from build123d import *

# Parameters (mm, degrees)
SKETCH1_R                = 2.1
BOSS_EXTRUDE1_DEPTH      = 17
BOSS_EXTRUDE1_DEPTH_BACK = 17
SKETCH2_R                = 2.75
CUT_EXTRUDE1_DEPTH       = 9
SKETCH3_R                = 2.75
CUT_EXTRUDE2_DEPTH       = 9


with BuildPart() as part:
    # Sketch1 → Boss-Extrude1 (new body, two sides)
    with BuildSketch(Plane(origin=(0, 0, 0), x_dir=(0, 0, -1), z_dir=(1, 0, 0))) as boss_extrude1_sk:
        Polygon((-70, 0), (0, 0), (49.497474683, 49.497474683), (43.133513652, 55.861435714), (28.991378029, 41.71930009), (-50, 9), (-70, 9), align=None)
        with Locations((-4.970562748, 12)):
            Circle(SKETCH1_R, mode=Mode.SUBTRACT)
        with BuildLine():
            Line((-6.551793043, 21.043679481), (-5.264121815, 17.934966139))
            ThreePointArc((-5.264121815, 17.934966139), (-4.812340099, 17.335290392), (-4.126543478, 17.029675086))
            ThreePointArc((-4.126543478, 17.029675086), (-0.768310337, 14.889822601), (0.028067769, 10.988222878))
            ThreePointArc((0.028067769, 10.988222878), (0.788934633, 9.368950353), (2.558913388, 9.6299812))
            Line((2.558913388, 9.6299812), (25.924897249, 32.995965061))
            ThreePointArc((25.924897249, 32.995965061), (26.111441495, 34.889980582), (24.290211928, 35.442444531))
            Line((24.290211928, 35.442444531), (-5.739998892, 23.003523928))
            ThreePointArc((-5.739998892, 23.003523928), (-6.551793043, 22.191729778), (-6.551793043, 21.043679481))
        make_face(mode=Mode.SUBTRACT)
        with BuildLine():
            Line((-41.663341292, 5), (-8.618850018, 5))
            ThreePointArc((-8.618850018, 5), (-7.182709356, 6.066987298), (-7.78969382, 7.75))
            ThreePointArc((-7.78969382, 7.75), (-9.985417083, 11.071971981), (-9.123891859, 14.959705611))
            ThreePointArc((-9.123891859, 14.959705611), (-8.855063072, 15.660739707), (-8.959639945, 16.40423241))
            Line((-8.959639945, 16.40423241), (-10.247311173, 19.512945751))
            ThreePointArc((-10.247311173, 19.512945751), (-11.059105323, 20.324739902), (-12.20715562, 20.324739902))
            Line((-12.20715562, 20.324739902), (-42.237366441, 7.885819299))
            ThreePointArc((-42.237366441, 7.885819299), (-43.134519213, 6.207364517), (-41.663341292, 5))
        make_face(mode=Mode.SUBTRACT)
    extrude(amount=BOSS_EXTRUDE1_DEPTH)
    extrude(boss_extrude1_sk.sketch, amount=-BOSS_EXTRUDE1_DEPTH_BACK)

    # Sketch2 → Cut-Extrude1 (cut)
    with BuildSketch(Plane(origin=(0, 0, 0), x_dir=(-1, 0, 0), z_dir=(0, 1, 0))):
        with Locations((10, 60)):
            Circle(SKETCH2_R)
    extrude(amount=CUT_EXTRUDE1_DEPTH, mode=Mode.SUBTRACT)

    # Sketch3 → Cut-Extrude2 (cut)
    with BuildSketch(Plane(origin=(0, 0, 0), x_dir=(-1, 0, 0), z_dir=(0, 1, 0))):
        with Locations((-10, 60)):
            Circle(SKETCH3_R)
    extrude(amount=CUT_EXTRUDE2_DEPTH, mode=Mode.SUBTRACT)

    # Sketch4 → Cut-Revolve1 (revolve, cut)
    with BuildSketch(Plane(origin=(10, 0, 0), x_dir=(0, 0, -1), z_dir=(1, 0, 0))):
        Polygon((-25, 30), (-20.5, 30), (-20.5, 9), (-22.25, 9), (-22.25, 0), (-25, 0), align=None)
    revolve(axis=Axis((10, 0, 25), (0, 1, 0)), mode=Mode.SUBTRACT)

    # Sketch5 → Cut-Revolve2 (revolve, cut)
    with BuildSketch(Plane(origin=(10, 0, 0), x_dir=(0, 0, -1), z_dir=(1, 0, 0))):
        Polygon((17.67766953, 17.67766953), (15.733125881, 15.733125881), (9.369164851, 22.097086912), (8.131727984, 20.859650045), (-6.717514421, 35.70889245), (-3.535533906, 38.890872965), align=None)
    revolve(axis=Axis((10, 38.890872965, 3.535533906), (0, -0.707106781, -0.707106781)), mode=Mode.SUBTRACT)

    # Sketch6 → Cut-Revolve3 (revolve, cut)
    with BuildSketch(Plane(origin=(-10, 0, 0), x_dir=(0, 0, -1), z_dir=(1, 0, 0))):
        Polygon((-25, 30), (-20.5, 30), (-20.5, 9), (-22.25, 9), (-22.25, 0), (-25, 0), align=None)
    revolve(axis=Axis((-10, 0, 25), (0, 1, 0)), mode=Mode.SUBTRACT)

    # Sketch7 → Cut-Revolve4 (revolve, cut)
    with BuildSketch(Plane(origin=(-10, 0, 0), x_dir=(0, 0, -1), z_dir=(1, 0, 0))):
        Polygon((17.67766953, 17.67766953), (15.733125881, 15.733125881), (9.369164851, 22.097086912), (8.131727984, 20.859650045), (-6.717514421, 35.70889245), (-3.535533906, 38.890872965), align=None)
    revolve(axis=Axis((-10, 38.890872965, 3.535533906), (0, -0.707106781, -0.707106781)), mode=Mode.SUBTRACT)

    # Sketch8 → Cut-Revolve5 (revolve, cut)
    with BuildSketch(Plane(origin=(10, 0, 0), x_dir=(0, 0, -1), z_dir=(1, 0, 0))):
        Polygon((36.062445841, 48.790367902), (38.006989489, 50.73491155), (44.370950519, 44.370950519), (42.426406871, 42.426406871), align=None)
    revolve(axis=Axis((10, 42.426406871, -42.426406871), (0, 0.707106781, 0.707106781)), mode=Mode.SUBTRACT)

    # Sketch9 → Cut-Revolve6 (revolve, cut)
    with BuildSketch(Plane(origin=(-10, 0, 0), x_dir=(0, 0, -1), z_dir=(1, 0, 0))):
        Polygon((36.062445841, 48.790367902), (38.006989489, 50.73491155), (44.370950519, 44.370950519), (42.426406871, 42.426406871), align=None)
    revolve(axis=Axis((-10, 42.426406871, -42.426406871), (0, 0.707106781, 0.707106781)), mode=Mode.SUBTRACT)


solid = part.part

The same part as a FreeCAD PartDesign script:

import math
import FreeCAD as App
import Part
import Sketcher
Q = App.Units.Quantity

doc = App.newDocument("Part")
body = doc.addObject("PartDesign::Body", "Body")

# Sketch on YZ plane
sketch1 = body.newObject("Sketcher::SketchObject", "Sketch")
sketch1.AttachmentSupport = (doc.getObject("YZ_Plane"), [""])
sketch1.MapMode = "FlatFace"
sketch1.addGeometry(Part.LineSegment(App.Vector(0, 70, 0), App.Vector(0, 0, 0)), False)
sketch1.addGeometry(Part.LineSegment(App.Vector(0, 0, 0), App.Vector(49.497475, -49.497475, 0)), False)
sketch1.addGeometry(Part.LineSegment(App.Vector(49.497475, -49.497475, 0), App.Vector(55.861436, -43.133514, 0)), False)
sketch1.addGeometry(Part.LineSegment(App.Vector(55.861436, -43.133514, 0), App.Vector(41.7193, -28.991378, 0)), False)
sketch1.addGeometry(Part.LineSegment(App.Vector(41.7193, -28.991378, 0), App.Vector(9, 50, 0)), False)
sketch1.addGeometry(Part.LineSegment(App.Vector(9, 50, 0), App.Vector(9, 70, 0)), False)
sketch1.addGeometry(Part.LineSegment(App.Vector(9, 70, 0), App.Vector(0, 70, 0)), False)
sketch1.addGeometry(Part.LineSegment(App.Vector(5, 8.61885, 0), App.Vector(5, 41.663341, 0)), False)
sketch1.addGeometry(Part.ArcOfCircle(Part.Circle(App.Vector(6.5, 41.663341, 0), App.Vector(0, 0, 1), 1.5), math.radians(22.5), math.radians(180)), False)
sketch1.addGeometry(Part.LineSegment(App.Vector(7.885819, 42.237366, 0), App.Vector(20.32474, 12.207156, 0)), False)
sketch1.addGeometry(Part.ArcOfCircle(Part.Circle(App.Vector(18.938921, 11.63313, 0), App.Vector(0, 0, 1), 1.5), math.radians(-67.5), math.radians(22.5)), False)
sketch1.addGeometry(Part.LineSegment(App.Vector(19.512946, 10.247311, 0), App.Vector(16.404232, 8.95964, 0)), False)
sketch1.addGeometry(Part.ArcOfCircle(Part.Circle(App.Vector(15.830207, 10.345459, 0), App.Vector(0, 0, 1), 1.5), math.radians(-125.474068), math.radians(-67.5)), False)
sketch1.addGeometry(Part.ArcOfCircle(Part.Circle(App.Vector(12, 4.970563, 0), App.Vector(0, 0, 1), 5.1), math.radians(54.525932), math.radians(146.44269)), False)
sketch1.addGeometry(Part.ArcOfCircle(Part.Circle(App.Vector(6.5, 8.61885, 0), App.Vector(0, 0, 1), 1.5), math.radians(180), math.radians(326.44269)), False)
sketch1.addGeometry(Part.Circle(App.Vector(12, 4.970563, 0), App.Vector(0, 0, 1), 2.1), False)
sketch1.addGeometry(Part.LineSegment(App.Vector(17.934966, 5.264122, 0), App.Vector(21.043679, 6.551793, 0)), False)
sketch1.addGeometry(Part.ArcOfCircle(Part.Circle(App.Vector(21.617705, 5.165974, 0), App.Vector(0, 0, 1), 1.5), math.radians(22.5), math.radians(112.5)), False)
sketch1.addGeometry(Part.LineSegment(App.Vector(23.003524, 5.739999, 0), App.Vector(35.442445, -24.290212, 0)), False)
sketch1.addGeometry(Part.ArcOfCircle(Part.Circle(App.Vector(34.056625, -24.864237, 0), App.Vector(0, 0, 1), 1.5), math.radians(-135), math.radians(22.5)), False)
sketch1.addGeometry(Part.LineSegment(App.Vector(32.995965, -25.924897, 0), App.Vector(9.629981, -2.558913, 0)), False)
sketch1.addGeometry(Part.ArcOfCircle(Part.Circle(App.Vector(10.690641, -1.498253, 0), App.Vector(0, 0, 1), 1.5), math.radians(78.55731), math.radians(225)), False)
sketch1.addGeometry(Part.ArcOfCircle(Part.Circle(App.Vector(12, 4.970563, 0), App.Vector(0, 0, 1), 5.1), math.radians(-101.44269), math.radians(-9.525932)), False)
sketch1.addGeometry(Part.ArcOfCircle(Part.Circle(App.Vector(18.508991, 3.878303, 0), App.Vector(0, 0, 1), 1.5), math.radians(112.5), math.radians(170.474068)), False)
sketch1.addConstraint(Sketcher.Constraint("Coincident", 0, 2, 1, 1))
sketch1.addConstraint(Sketcher.Constraint("Coincident", 1, 2, 2, 1))
sketch1.addConstraint(Sketcher.Constraint("Coincident", 2, 2, 3, 1))
sketch1.addConstraint(Sketcher.Constraint("Coincident", 3, 2, 4, 1))
sketch1.addConstraint(Sketcher.Constraint("Coincident", 4, 2, 5, 1))
sketch1.addConstraint(Sketcher.Constraint("Coincident", 5, 2, 6, 1))
sketch1.addConstraint(Sketcher.Constraint("Coincident", 6, 2, 0, 1))
sketch1.addConstraint(Sketcher.Constraint("Tangent", 7, 2, 8, 2))
sketch1.addConstraint(Sketcher.Constraint("Tangent", 8, 1, 9, 1))
sketch1.addConstraint(Sketcher.Constraint("Tangent", 9, 2, 10, 2))
sketch1.addConstraint(Sketcher.Constraint("Tangent", 10, 1, 11, 1))
sketch1.addConstraint(Sketcher.Constraint("Tangent", 11, 2, 12, 2))
sketch1.addConstraint(Sketcher.Constraint("Tangent", 12, 1, 13, 1))
sketch1.addConstraint(Sketcher.Constraint("Tangent", 13, 2, 14, 2))
sketch1.addConstraint(Sketcher.Constraint("Tangent", 14, 1, 7, 1))
sketch1.addConstraint(Sketcher.Constraint("Tangent", 16, 2, 17, 2))
sketch1.addConstraint(Sketcher.Constraint("Tangent", 17, 1, 18, 1))
sketch1.addConstraint(Sketcher.Constraint("Tangent", 18, 2, 19, 2))
sketch1.addConstraint(Sketcher.Constraint("Tangent", 19, 1, 20, 1))
sketch1.addConstraint(Sketcher.Constraint("Tangent", 20, 2, 21, 2))
sketch1.addConstraint(Sketcher.Constraint("Tangent", 21, 1, 22, 1))
sketch1.addConstraint(Sketcher.Constraint("Tangent", 22, 2, 23, 2))
sketch1.addConstraint(Sketcher.Constraint("Tangent", 23, 1, 16, 1))
sketch1.addConstraint(Sketcher.Constraint("Vertical", 0))
sketch1.addConstraint(Sketcher.Constraint("Vertical", 5))
sketch1.addConstraint(Sketcher.Constraint("Horizontal", 6))
sketch1.addConstraint(Sketcher.Constraint("Vertical", 7))
sketch1.addConstraint(Sketcher.Constraint("Coincident", 0, 2, -1, 1))
sketch1.addConstraint(Sketcher.Constraint("Coincident", 15, 3, 13, 3))
sketch1.addConstraint(Sketcher.Constraint("Coincident", 22, 3, 13, 3))
sketch1.addConstraint(Sketcher.Constraint("Equal", 8, 10))
sketch1.addConstraint(Sketcher.Constraint("Equal", 10, 12))
sketch1.addConstraint(Sketcher.Constraint("Equal", 12, 14))
sketch1.addConstraint(Sketcher.Constraint("Equal", 14, 17))
sketch1.addConstraint(Sketcher.Constraint("Equal", 17, 19))
sketch1.addConstraint(Sketcher.Constraint("Equal", 19, 21))
sketch1.addConstraint(Sketcher.Constraint("Equal", 13, 22))
sketch1.addConstraint(Sketcher.Constraint("Equal", 21, 23))
sketch1.addConstraint(Sketcher.Constraint("Perpendicular", 1, 2))
sketch1.addConstraint(Sketcher.Constraint("Perpendicular", 2, 3))
sketch1.addConstraint(Sketcher.Constraint("Parallel", 4, 9))
sketch1.addConstraint(Sketcher.Constraint("Perpendicular", 9, 11))
sketch1.addConstraint(Sketcher.Constraint("Parallel", 11, 16))
sketch1.addConstraint(Sketcher.Constraint("Perpendicular", 16, 18))
sketch1.addConstraint(Sketcher.Constraint("Parallel", 3, 20))
sketch1.addConstraint(Sketcher.Constraint("Equal", 11, 16))
sketch1.addConstraint(Sketcher.Constraint("Equal", 9, 18))
sketch1.addConstraint(Sketcher.Constraint("Diameter", 15, 4.2))
sketch1.addConstraint(Sketcher.Constraint("Radius", 8, 1.5))
sketch1.addConstraint(Sketcher.Constraint("Radius", 13, 5.1))
sketch1.addConstraint(Sketcher.Constraint("DistanceX", 6, 2, 6, 1, 9.0))
sketch1.addConstraint(Sketcher.Constraint("DistanceY", 0, 2, 0, 1, 70.0))
sketch1.addConstraint(Sketcher.Constraint("DistanceY", 5, 1, 5, 2, 20.0))
sketch1.addConstraint(Sketcher.Constraint("Angle", 1, Q("-45 deg")))
sketch1.addConstraint(Sketcher.Constraint("Distance", 1, 70.0))
sketch1.addConstraint(Sketcher.Constraint("Distance", 2, 9.0))
sketch1.addConstraint(Sketcher.Constraint("Distance", 3, 20.0))
sketch1.addConstraint(Sketcher.Constraint("DistanceX", -1, 1, 13, 3, 12.0))
sketch1.addConstraint(Sketcher.Constraint("DistanceX", -1, 1, 7, 2, 5.0))
sketch1.addConstraint(Sketcher.Constraint("DistanceY", -1, 1, 17, 1, 5.739999))
sketch1.addConstraint(Sketcher.Constraint("DistanceY", 7, 1, 7, 2, 33.044491))
sketch1.addConstraint(Sketcher.Constraint("DistanceY", 19, 3, 13, 3, 29.8348))
sketch1.addConstraint(Sketcher.Constraint("DistanceX", 12, 1, 12, 3, 0.870502))
pad1 = body.newObject("PartDesign::Pad", "Pad")
pad1.Profile = sketch1
pad1.Type = "TwoLengths"
pad1.Length = 17
pad1.Length2 = 17

# Sketch on XZ plane
sketch2 = body.newObject("Sketcher::SketchObject", "Sketch001")
sketch2.AttachmentSupport = (doc.getObject("XZ_Plane"), [""])
sketch2.MapMode = "FlatFace"
sketch2.addGeometry(Part.Circle(App.Vector(-10, 60, 0), App.Vector(0, 0, 1), 2.75), False)
sketch2.addConstraint(Sketcher.Constraint("Diameter", 0, 5.5))
sketch2.addConstraint(Sketcher.Constraint("DistanceX", 0, 3, -1, 1, 10.0))
sketch2.addConstraint(Sketcher.Constraint("DistanceY", -1, 1, 0, 3, 60.0))
pocket1 = body.newObject("PartDesign::Pocket", "Pocket")
pocket1.Profile = sketch2
pocket1.Length = 9

# Sketch on XZ plane
sketch3 = body.newObject("Sketcher::SketchObject", "Sketch002")
sketch3.AttachmentSupport = (doc.getObject("XZ_Plane"), [""])
sketch3.MapMode = "FlatFace"
sketch3.addGeometry(Part.Circle(App.Vector(10, 60, 0), App.Vector(0, 0, 1), 2.75), False)
sketch3.addConstraint(Sketcher.Constraint("Diameter", 0, 5.5))
sketch3.addConstraint(Sketcher.Constraint("DistanceX", -1, 1, 0, 3, 10.0))
sketch3.addConstraint(Sketcher.Constraint("DistanceY", -1, 1, 0, 3, 60.0))
pocket2 = body.newObject("PartDesign::Pocket", "Pocket001")
pocket2.Profile = sketch3
pocket2.Length = 9

# Sketch on YZ plane
sketch4 = body.newObject("Sketcher::SketchObject", "Sketch003")
sketch4.AttachmentSupport = (doc.getObject("YZ_Plane"), [""])
sketch4.MapMode = "FlatFace"
sketch4.AttachmentOffset = App.Placement(App.Vector(0, 0, 10), App.Rotation())
sketch4.addGeometry(Part.LineSegment(App.Vector(30, 20.5, 0), App.Vector(30, 25, 0)), False)
sketch4.addGeometry(Part.LineSegment(App.Vector(30, 25, 0), App.Vector(0, 25, 0)), False)
sketch4.addGeometry(Part.LineSegment(App.Vector(0, 25, 0), App.Vector(0, 22.25, 0)), False)
sketch4.addGeometry(Part.LineSegment(App.Vector(0, 22.25, 0), App.Vector(9, 22.25, 0)), False)
sketch4.addGeometry(Part.LineSegment(App.Vector(9, 22.25, 0), App.Vector(9, 20.5, 0)), False)
sketch4.addGeometry(Part.LineSegment(App.Vector(9, 20.5, 0), App.Vector(30, 20.5, 0)), False)
sketch4.addGeometry(Part.LineSegment(App.Vector(0, 25, 0), App.Vector(30, 25, 0)), True)  # axis
sketch4.addConstraint(Sketcher.Constraint("Coincident", 0, 2, 1, 1))
sketch4.addConstraint(Sketcher.Constraint("Coincident", 1, 2, 2, 1))
sketch4.addConstraint(Sketcher.Constraint("Coincident", 2, 2, 3, 1))
sketch4.addConstraint(Sketcher.Constraint("Coincident", 3, 2, 4, 1))
sketch4.addConstraint(Sketcher.Constraint("Coincident", 4, 2, 5, 1))
sketch4.addConstraint(Sketcher.Constraint("Coincident", 5, 2, 0, 1))
sketch4.addConstraint(Sketcher.Constraint("Vertical", 0))
sketch4.addConstraint(Sketcher.Constraint("Horizontal", 1))
sketch4.addConstraint(Sketcher.Constraint("Vertical", 2))
sketch4.addConstraint(Sketcher.Constraint("Horizontal", 3))
sketch4.addConstraint(Sketcher.Constraint("Vertical", 4))
sketch4.addConstraint(Sketcher.Constraint("Horizontal", 5))
sketch4.addConstraint(Sketcher.Constraint("Horizontal", 6))
sketch4.addConstraint(Sketcher.Constraint("Coincident", 6, 1, 1, 2))
sketch4.addConstraint(Sketcher.Constraint("PointOnObject", 1, 2, -2))
sketch4.addConstraint(Sketcher.Constraint("Vertical", 5, 2, 6, 2))
sketch4.addConstraint(Sketcher.Constraint("DistanceX", 1, 2, 1, 1, 30.0))
sketch4.addConstraint(Sketcher.Constraint("DistanceX", 3, 1, 3, 2, 9.0))
sketch4.addConstraint(Sketcher.Constraint("DistanceY", 0, 1, 0, 2, 4.5))
sketch4.addConstraint(Sketcher.Constraint("DistanceY", -1, 1, 0, 2, 25.0))
sketch4.addConstraint(Sketcher.Constraint("DistanceY", 2, 2, 2, 1, 2.75))
groove = body.newObject("PartDesign::Groove", "Groove")
groove.Profile = sketch4
groove.ReferenceAxis = (sketch4, ["Axis0"])
groove.Angle = 360

# Sketch on YZ plane
sketch5 = body.newObject("Sketcher::SketchObject", "Sketch004")
sketch5.AttachmentSupport = (doc.getObject("YZ_Plane"), [""])
sketch5.MapMode = "FlatFace"
sketch5.AttachmentOffset = App.Placement(App.Vector(0, 0, 10), App.Rotation())
sketch5.addGeometry(Part.LineSegment(App.Vector(15.733126, -15.733126, 0), App.Vector(17.67767, -17.67767, 0)), False)
sketch5.addGeometry(Part.LineSegment(App.Vector(17.67767, -17.67767, 0), App.Vector(38.890873, 3.535534, 0)), False)
sketch5.addGeometry(Part.LineSegment(App.Vector(38.890873, 3.535534, 0), App.Vector(35.708892, 6.717514, 0)), False)
sketch5.addGeometry(Part.LineSegment(App.Vector(35.708892, 6.717514, 0), App.Vector(20.85965, -8.131728, 0)), False)
sketch5.addGeometry(Part.LineSegment(App.Vector(20.85965, -8.131728, 0), App.Vector(22.097087, -9.369165, 0)), False)
sketch5.addGeometry(Part.LineSegment(App.Vector(22.097087, -9.369165, 0), App.Vector(15.733126, -15.733126, 0)), False)
sketch5.addGeometry(Part.LineSegment(App.Vector(38.890873, 3.535534, 0), App.Vector(17.67767, -17.67767, 0)), True)  # axis
sketch5.addConstraint(Sketcher.Constraint("Coincident", 0, 2, 1, 1))
sketch5.addConstraint(Sketcher.Constraint("Coincident", 1, 2, 2, 1))
sketch5.addConstraint(Sketcher.Constraint("Coincident", 2, 2, 3, 1))
sketch5.addConstraint(Sketcher.Constraint("Coincident", 3, 2, 4, 1))
sketch5.addConstraint(Sketcher.Constraint("Coincident", 4, 2, 5, 1))
sketch5.addConstraint(Sketcher.Constraint("Coincident", 5, 2, 0, 1))
sketch5.addConstraint(Sketcher.Constraint("Coincident", 6, 1, 1, 2))
sketch5.addConstraint(Sketcher.Constraint("Coincident", 6, 2, 0, 2))
sketch5.addConstraint(Sketcher.Constraint("Perpendicular", 0, 1))
sketch5.addConstraint(Sketcher.Constraint("Perpendicular", 1, 2))
sketch5.addConstraint(Sketcher.Constraint("Perpendicular", 2, 3))
sketch5.addConstraint(Sketcher.Constraint("Perpendicular", 3, 4))
sketch5.addConstraint(Sketcher.Constraint("Perpendicular", 4, 5))
sketch5.addConstraint(Sketcher.Constraint("Angle", 0, Q("-45 deg")))
sketch5.addConstraint(Sketcher.Constraint("Distance", 1, 30.0))
sketch5.addConstraint(Sketcher.Constraint("Distance", 3, 21.0))
sketch5.addConstraint(Sketcher.Constraint("Distance", 2, 4.5))
sketch5.addConstraint(Sketcher.Constraint("Distance", 0, 2.75))
sketch5.addConstraint(Sketcher.Constraint("DistanceX", -1, 1, 0, 2, 17.67767))
sketch5.addConstraint(Sketcher.Constraint("DistanceY", 0, 2, -1, 1, 17.67767))
groove2 = body.newObject("PartDesign::Groove", "Groove001")
groove2.Profile = sketch5
groove2.ReferenceAxis = (sketch5, ["Axis0"])
groove2.Angle = 360

# Sketch on YZ plane
sketch6 = body.newObject("Sketcher::SketchObject", "Sketch005")
sketch6.AttachmentSupport = (doc.getObject("YZ_Plane"), [""])
sketch6.MapMode = "FlatFace"
sketch6.AttachmentOffset = App.Placement(App.Vector(0, 0, -10), App.Rotation())
sketch6.addGeometry(Part.LineSegment(App.Vector(30, 20.5, 0), App.Vector(30, 25, 0)), False)
sketch6.addGeometry(Part.LineSegment(App.Vector(30, 25, 0), App.Vector(0, 25, 0)), False)
sketch6.addGeometry(Part.LineSegment(App.Vector(0, 25, 0), App.Vector(0, 22.25, 0)), False)
sketch6.addGeometry(Part.LineSegment(App.Vector(0, 22.25, 0), App.Vector(9, 22.25, 0)), False)
sketch6.addGeometry(Part.LineSegment(App.Vector(9, 22.25, 0), App.Vector(9, 20.5, 0)), False)
sketch6.addGeometry(Part.LineSegment(App.Vector(9, 20.5, 0), App.Vector(30, 20.5, 0)), False)
sketch6.addGeometry(Part.LineSegment(App.Vector(0, 25, 0), App.Vector(30, 25, 0)), True)  # axis
sketch6.addConstraint(Sketcher.Constraint("Coincident", 0, 2, 1, 1))
sketch6.addConstraint(Sketcher.Constraint("Coincident", 1, 2, 2, 1))
sketch6.addConstraint(Sketcher.Constraint("Coincident", 2, 2, 3, 1))
sketch6.addConstraint(Sketcher.Constraint("Coincident", 3, 2, 4, 1))
sketch6.addConstraint(Sketcher.Constraint("Coincident", 4, 2, 5, 1))
sketch6.addConstraint(Sketcher.Constraint("Coincident", 5, 2, 0, 1))
sketch6.addConstraint(Sketcher.Constraint("Vertical", 0))
sketch6.addConstraint(Sketcher.Constraint("Horizontal", 1))
sketch6.addConstraint(Sketcher.Constraint("Vertical", 2))
sketch6.addConstraint(Sketcher.Constraint("Horizontal", 3))
sketch6.addConstraint(Sketcher.Constraint("Vertical", 4))
sketch6.addConstraint(Sketcher.Constraint("Horizontal", 5))
sketch6.addConstraint(Sketcher.Constraint("Horizontal", 6))
sketch6.addConstraint(Sketcher.Constraint("Coincident", 6, 1, 1, 2))
sketch6.addConstraint(Sketcher.Constraint("PointOnObject", 1, 2, -2))
sketch6.addConstraint(Sketcher.Constraint("Vertical", 5, 2, 6, 2))
sketch6.addConstraint(Sketcher.Constraint("DistanceX", 1, 2, 1, 1, 30.0))
sketch6.addConstraint(Sketcher.Constraint("DistanceX", 3, 1, 3, 2, 9.0))
sketch6.addConstraint(Sketcher.Constraint("DistanceY", 0, 1, 0, 2, 4.5))
sketch6.addConstraint(Sketcher.Constraint("DistanceY", -1, 1, 0, 2, 25.0))
sketch6.addConstraint(Sketcher.Constraint("DistanceY", 2, 2, 2, 1, 2.75))
groove3 = body.newObject("PartDesign::Groove", "Groove002")
groove3.Profile = sketch6
groove3.ReferenceAxis = (sketch6, ["Axis0"])
groove3.Angle = 360

# Sketch on YZ plane
sketch7 = body.newObject("Sketcher::SketchObject", "Sketch006")
sketch7.AttachmentSupport = (doc.getObject("YZ_Plane"), [""])
sketch7.MapMode = "FlatFace"
sketch7.AttachmentOffset = App.Placement(App.Vector(0, 0, -10), App.Rotation())
sketch7.addGeometry(Part.LineSegment(App.Vector(15.733126, -15.733126, 0), App.Vector(17.67767, -17.67767, 0)), False)
sketch7.addGeometry(Part.LineSegment(App.Vector(17.67767, -17.67767, 0), App.Vector(38.890873, 3.535534, 0)), False)
sketch7.addGeometry(Part.LineSegment(App.Vector(38.890873, 3.535534, 0), App.Vector(35.708892, 6.717514, 0)), False)
sketch7.addGeometry(Part.LineSegment(App.Vector(35.708892, 6.717514, 0), App.Vector(20.85965, -8.131728, 0)), False)
sketch7.addGeometry(Part.LineSegment(App.Vector(20.85965, -8.131728, 0), App.Vector(22.097087, -9.369165, 0)), False)
sketch7.addGeometry(Part.LineSegment(App.Vector(22.097087, -9.369165, 0), App.Vector(15.733126, -15.733126, 0)), False)
sketch7.addGeometry(Part.LineSegment(App.Vector(38.890873, 3.535534, 0), App.Vector(17.67767, -17.67767, 0)), True)  # axis
sketch7.addConstraint(Sketcher.Constraint("Coincident", 0, 2, 1, 1))
sketch7.addConstraint(Sketcher.Constraint("Coincident", 1, 2, 2, 1))
sketch7.addConstraint(Sketcher.Constraint("Coincident", 2, 2, 3, 1))
sketch7.addConstraint(Sketcher.Constraint("Coincident", 3, 2, 4, 1))
sketch7.addConstraint(Sketcher.Constraint("Coincident", 4, 2, 5, 1))
sketch7.addConstraint(Sketcher.Constraint("Coincident", 5, 2, 0, 1))
sketch7.addConstraint(Sketcher.Constraint("Coincident", 6, 1, 1, 2))
sketch7.addConstraint(Sketcher.Constraint("Coincident", 6, 2, 0, 2))
sketch7.addConstraint(Sketcher.Constraint("Perpendicular", 0, 1))
sketch7.addConstraint(Sketcher.Constraint("Perpendicular", 1, 2))
sketch7.addConstraint(Sketcher.Constraint("Perpendicular", 2, 3))
sketch7.addConstraint(Sketcher.Constraint("Perpendicular", 3, 4))
sketch7.addConstraint(Sketcher.Constraint("Perpendicular", 4, 5))
sketch7.addConstraint(Sketcher.Constraint("Angle", 0, Q("-45 deg")))
sketch7.addConstraint(Sketcher.Constraint("Distance", 1, 30.0))
sketch7.addConstraint(Sketcher.Constraint("Distance", 3, 21.0))
sketch7.addConstraint(Sketcher.Constraint("Distance", 2, 4.5))
sketch7.addConstraint(Sketcher.Constraint("Distance", 0, 2.75))
sketch7.addConstraint(Sketcher.Constraint("DistanceX", -1, 1, 0, 2, 17.67767))
sketch7.addConstraint(Sketcher.Constraint("DistanceY", 0, 2, -1, 1, 17.67767))
groove4 = body.newObject("PartDesign::Groove", "Groove003")
groove4.Profile = sketch7
groove4.ReferenceAxis = (sketch7, ["Axis0"])
groove4.Angle = 360

# Sketch on YZ plane
sketch8 = body.newObject("Sketcher::SketchObject", "Sketch007")
sketch8.AttachmentSupport = (doc.getObject("YZ_Plane"), [""])
sketch8.MapMode = "FlatFace"
sketch8.AttachmentOffset = App.Placement(App.Vector(0, 0, 10), App.Rotation())
sketch8.addGeometry(Part.LineSegment(App.Vector(50.734912, -38.006989, 0), App.Vector(48.790368, -36.062446, 0)), False)
sketch8.addGeometry(Part.LineSegment(App.Vector(48.790368, -36.062446, 0), App.Vector(42.426407, -42.426407, 0)), False)
sketch8.addGeometry(Part.LineSegment(App.Vector(42.426407, -42.426407, 0), App.Vector(44.370951, -44.370951, 0)), False)
sketch8.addGeometry(Part.LineSegment(App.Vector(44.370951, -44.370951, 0), App.Vector(50.734912, -38.006989, 0)), False)
sketch8.addGeometry(Part.LineSegment(App.Vector(42.426407, -42.426407, 0), App.Vector(48.790368, -36.062446, 0)), True)  # axis
sketch8.addConstraint(Sketcher.Constraint("Coincident", 0, 2, 1, 1))
sketch8.addConstraint(Sketcher.Constraint("Coincident", 1, 2, 2, 1))
sketch8.addConstraint(Sketcher.Constraint("Coincident", 2, 2, 3, 1))
sketch8.addConstraint(Sketcher.Constraint("Coincident", 3, 2, 0, 1))
sketch8.addConstraint(Sketcher.Constraint("Coincident", 4, 1, 1, 2))
sketch8.addConstraint(Sketcher.Constraint("Coincident", 4, 2, 0, 2))
sketch8.addConstraint(Sketcher.Constraint("Perpendicular", 0, 1))
sketch8.addConstraint(Sketcher.Constraint("Perpendicular", 1, 2))
sketch8.addConstraint(Sketcher.Constraint("Perpendicular", 2, 3))
sketch8.addConstraint(Sketcher.Constraint("Angle", 0, Q("135 deg")))
sketch8.addConstraint(Sketcher.Constraint("Distance", 1, 9.0))
sketch8.addConstraint(Sketcher.Constraint("Distance", 0, 2.75))
sketch8.addConstraint(Sketcher.Constraint("DistanceX", -1, 1, 2, 2, 44.370951))
sketch8.addConstraint(Sketcher.Constraint("DistanceY", 2, 2, -1, 1, 44.370951))
groove5 = body.newObject("PartDesign::Groove", "Groove004")
groove5.Profile = sketch8
groove5.ReferenceAxis = (sketch8, ["Axis0"])
groove5.Angle = 360

# Sketch on YZ plane
sketch9 = body.newObject("Sketcher::SketchObject", "Sketch008")
sketch9.AttachmentSupport = (doc.getObject("YZ_Plane"), [""])
sketch9.MapMode = "FlatFace"
sketch9.AttachmentOffset = App.Placement(App.Vector(0, 0, -10), App.Rotation())
sketch9.addGeometry(Part.LineSegment(App.Vector(50.734912, -38.006989, 0), App.Vector(48.790368, -36.062446, 0)), False)
sketch9.addGeometry(Part.LineSegment(App.Vector(48.790368, -36.062446, 0), App.Vector(42.426407, -42.426407, 0)), False)
sketch9.addGeometry(Part.LineSegment(App.Vector(42.426407, -42.426407, 0), App.Vector(44.370951, -44.370951, 0)), False)
sketch9.addGeometry(Part.LineSegment(App.Vector(44.370951, -44.370951, 0), App.Vector(50.734912, -38.006989, 0)), False)
sketch9.addGeometry(Part.LineSegment(App.Vector(42.426407, -42.426407, 0), App.Vector(48.790368, -36.062446, 0)), True)  # axis
sketch9.addConstraint(Sketcher.Constraint("Coincident", 0, 2, 1, 1))
sketch9.addConstraint(Sketcher.Constraint("Coincident", 1, 2, 2, 1))
sketch9.addConstraint(Sketcher.Constraint("Coincident", 2, 2, 3, 1))
sketch9.addConstraint(Sketcher.Constraint("Coincident", 3, 2, 0, 1))
sketch9.addConstraint(Sketcher.Constraint("Coincident", 4, 1, 1, 2))
sketch9.addConstraint(Sketcher.Constraint("Coincident", 4, 2, 0, 2))
sketch9.addConstraint(Sketcher.Constraint("Perpendicular", 0, 1))
sketch9.addConstraint(Sketcher.Constraint("Perpendicular", 1, 2))
sketch9.addConstraint(Sketcher.Constraint("Perpendicular", 2, 3))
sketch9.addConstraint(Sketcher.Constraint("Angle", 0, Q("135 deg")))
sketch9.addConstraint(Sketcher.Constraint("Distance", 1, 9.0))
sketch9.addConstraint(Sketcher.Constraint("Distance", 0, 2.75))
sketch9.addConstraint(Sketcher.Constraint("DistanceX", -1, 1, 2, 2, 44.370951))
sketch9.addConstraint(Sketcher.Constraint("DistanceY", 2, 2, -1, 1, 44.370951))
groove6 = body.newObject("PartDesign::Groove", "Groove005")
groove6.Profile = sketch9
groove6.ReferenceAxis = (sketch9, ["Axis0"])
groove6.Angle = 360

doc.recompute()
